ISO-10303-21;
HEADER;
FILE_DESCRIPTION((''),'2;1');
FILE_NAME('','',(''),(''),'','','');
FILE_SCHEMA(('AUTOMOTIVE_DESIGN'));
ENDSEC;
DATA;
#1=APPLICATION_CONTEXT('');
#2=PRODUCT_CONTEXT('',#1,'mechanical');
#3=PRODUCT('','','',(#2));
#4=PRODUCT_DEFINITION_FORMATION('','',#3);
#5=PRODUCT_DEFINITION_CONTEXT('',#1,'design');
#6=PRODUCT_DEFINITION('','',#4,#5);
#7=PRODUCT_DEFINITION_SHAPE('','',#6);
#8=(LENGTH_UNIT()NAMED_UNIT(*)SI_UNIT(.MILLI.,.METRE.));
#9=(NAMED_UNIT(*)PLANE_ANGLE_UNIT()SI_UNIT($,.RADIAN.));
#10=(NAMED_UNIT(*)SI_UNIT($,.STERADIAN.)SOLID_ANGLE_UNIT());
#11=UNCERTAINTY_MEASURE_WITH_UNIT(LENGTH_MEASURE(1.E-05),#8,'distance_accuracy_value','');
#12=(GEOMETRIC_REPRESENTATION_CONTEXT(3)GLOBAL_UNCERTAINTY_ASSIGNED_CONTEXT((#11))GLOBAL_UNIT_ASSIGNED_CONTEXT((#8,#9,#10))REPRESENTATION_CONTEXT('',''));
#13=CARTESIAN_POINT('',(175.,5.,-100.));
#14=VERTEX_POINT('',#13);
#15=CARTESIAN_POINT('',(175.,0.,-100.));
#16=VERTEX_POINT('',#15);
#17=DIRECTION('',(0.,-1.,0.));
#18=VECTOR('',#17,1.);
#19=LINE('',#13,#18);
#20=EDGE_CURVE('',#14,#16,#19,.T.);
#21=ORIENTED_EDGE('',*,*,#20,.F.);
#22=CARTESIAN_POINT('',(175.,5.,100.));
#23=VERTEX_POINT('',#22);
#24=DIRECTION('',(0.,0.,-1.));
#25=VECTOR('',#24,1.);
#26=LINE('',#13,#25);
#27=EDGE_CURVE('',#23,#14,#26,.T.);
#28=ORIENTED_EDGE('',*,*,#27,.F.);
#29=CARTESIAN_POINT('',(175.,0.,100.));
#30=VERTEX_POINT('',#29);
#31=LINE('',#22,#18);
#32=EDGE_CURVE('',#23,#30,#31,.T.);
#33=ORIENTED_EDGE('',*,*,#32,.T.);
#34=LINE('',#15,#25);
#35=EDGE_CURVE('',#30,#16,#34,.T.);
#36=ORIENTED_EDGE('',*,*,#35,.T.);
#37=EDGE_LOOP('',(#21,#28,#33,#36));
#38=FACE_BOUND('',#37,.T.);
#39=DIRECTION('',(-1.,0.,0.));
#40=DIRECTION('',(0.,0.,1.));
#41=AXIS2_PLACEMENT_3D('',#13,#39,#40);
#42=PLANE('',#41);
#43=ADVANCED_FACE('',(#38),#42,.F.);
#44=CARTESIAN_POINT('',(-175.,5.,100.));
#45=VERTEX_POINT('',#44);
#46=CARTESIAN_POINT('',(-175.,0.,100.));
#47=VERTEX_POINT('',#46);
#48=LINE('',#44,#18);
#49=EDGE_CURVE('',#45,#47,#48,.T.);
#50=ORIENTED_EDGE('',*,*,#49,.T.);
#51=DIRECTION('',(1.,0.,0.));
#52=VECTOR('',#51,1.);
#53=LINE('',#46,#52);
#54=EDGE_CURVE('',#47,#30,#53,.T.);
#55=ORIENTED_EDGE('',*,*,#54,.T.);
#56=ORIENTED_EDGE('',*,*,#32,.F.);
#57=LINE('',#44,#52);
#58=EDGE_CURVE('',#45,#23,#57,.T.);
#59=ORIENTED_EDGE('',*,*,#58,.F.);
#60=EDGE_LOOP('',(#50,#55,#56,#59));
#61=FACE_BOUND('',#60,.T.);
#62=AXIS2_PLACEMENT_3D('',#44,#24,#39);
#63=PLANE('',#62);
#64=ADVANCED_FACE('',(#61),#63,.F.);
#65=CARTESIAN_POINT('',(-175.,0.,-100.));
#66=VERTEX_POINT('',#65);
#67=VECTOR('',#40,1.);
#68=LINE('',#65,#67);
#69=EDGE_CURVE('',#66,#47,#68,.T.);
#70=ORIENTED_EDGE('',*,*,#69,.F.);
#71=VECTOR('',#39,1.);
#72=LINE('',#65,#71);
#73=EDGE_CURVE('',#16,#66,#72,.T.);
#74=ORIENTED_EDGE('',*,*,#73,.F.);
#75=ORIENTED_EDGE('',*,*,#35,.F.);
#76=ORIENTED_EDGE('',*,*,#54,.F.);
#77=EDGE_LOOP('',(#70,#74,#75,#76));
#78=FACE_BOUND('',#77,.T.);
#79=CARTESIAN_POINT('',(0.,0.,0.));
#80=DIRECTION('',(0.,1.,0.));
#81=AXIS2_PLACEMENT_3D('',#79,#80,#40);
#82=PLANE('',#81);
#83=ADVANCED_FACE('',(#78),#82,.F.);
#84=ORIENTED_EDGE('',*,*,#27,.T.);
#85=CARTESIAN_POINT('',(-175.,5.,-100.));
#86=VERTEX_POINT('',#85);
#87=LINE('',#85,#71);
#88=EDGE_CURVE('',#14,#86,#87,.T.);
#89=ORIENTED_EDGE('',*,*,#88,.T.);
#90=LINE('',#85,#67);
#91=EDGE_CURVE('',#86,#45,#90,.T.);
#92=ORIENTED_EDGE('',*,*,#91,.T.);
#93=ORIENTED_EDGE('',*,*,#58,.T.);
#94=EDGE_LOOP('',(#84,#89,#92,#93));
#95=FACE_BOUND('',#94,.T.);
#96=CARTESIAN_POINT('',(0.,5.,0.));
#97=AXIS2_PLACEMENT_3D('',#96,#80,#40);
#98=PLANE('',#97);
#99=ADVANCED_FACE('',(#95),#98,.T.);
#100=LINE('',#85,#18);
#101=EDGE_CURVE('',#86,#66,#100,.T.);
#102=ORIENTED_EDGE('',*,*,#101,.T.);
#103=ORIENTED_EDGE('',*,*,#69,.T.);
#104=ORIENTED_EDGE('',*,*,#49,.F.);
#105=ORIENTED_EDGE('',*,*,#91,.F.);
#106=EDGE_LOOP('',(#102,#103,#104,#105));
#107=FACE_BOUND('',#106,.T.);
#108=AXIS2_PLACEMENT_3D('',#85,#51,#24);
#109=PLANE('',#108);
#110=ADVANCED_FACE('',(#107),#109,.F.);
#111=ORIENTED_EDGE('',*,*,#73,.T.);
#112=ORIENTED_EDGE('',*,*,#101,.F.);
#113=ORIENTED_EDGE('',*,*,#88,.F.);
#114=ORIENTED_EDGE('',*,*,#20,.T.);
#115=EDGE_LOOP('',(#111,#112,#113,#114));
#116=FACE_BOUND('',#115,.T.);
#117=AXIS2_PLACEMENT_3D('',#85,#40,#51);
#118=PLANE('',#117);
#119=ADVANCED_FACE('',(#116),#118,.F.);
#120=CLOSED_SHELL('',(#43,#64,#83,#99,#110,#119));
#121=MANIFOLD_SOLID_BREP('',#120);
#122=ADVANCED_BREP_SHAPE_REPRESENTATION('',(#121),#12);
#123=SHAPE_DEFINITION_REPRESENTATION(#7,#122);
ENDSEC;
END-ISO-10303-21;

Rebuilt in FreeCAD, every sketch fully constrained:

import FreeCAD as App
import Part
import Sketcher
Q = App.Units.Quantity

doc = App.newDocument("Part")
params = doc.addObject("Spreadsheet::Sheet", "Params")
for row, (alias, value) in enumerate([
    ("sketch1_width", "350 mm"),
    ("sketch1_height", "200 mm"),
    ("pad1_length", "5 mm"),
], start=1):
    params.set(f"A{row}", alias)
    params.set(f"B{row}", "=" + value)
    params.setAlias(f"B{row}", alias)

body = doc.addObject("PartDesign::Body", "Body")

sketch1 = body.newObject("Sketcher::SketchObject", "Sketch")
sketch1.AttachmentSupport = (doc.getObject("XZ_Plane"), [""])
sketch1.MapMode = "FlatFace"
sketch1.addGeometry(Part.LineSegment(App.Vector(-175, -100, 0), App.Vector(-175, 100, 0)), False)
sketch1.addGeometry(Part.LineSegment(App.Vector(-175, 100, 0), App.Vector(175, 100, 0)), False)
sketch1.addGeometry(Part.LineSegment(App.Vector(175, 100, 0), App.Vector(175, -100, 0)), False)
sketch1.addGeometry(Part.LineSegment(App.Vector(175, -100, 0), App.Vector(-175, -100, 0)), False)
sketch1.addConstraint(Sketcher.Constraint("Coincident", 0, 2, 1, 1))
sketch1.addConstraint(Sketcher.Constraint("Coincident", 1, 2, 2, 1))
sketch1.addConstraint(Sketcher.Constraint("Coincident", 2, 2, 3, 1))
sketch1.addConstraint(Sketcher.Constraint("Coincident", 3, 2, 0, 1))
sketch1.addConstraint(Sketcher.Constraint("Vertical", 0))
sketch1.addConstraint(Sketcher.Constraint("Horizontal", 1))
sketch1.addConstraint(Sketcher.Constraint("Vertical", 2))
sketch1.addConstraint(Sketcher.Constraint("Horizontal", 3))
sketch1.addConstraint(Sketcher.Constraint("Symmetric", 0, 2, 2, 2, -1, 1))
sketch1.addConstraint(Sketcher.Constraint("DistanceX", 1, 1, 1, 2, Q("350 mm")))
sketch1.addConstraint(Sketcher.Constraint("DistanceY", 0, 1, 0, 2, Q("200 mm")))
sketch1.setExpression("Constraints[9]", "Params.sketch1_width")
sketch1.setExpression("Constraints[10]", "Params.sketch1_height")
pad1 = body.newObject("PartDesign::Pad", "Pad")
pad1.Profile = sketch1
pad1.setExpression("Length", "Params.pad1_length")
pad1.Reversed = True

doc.recompute()
